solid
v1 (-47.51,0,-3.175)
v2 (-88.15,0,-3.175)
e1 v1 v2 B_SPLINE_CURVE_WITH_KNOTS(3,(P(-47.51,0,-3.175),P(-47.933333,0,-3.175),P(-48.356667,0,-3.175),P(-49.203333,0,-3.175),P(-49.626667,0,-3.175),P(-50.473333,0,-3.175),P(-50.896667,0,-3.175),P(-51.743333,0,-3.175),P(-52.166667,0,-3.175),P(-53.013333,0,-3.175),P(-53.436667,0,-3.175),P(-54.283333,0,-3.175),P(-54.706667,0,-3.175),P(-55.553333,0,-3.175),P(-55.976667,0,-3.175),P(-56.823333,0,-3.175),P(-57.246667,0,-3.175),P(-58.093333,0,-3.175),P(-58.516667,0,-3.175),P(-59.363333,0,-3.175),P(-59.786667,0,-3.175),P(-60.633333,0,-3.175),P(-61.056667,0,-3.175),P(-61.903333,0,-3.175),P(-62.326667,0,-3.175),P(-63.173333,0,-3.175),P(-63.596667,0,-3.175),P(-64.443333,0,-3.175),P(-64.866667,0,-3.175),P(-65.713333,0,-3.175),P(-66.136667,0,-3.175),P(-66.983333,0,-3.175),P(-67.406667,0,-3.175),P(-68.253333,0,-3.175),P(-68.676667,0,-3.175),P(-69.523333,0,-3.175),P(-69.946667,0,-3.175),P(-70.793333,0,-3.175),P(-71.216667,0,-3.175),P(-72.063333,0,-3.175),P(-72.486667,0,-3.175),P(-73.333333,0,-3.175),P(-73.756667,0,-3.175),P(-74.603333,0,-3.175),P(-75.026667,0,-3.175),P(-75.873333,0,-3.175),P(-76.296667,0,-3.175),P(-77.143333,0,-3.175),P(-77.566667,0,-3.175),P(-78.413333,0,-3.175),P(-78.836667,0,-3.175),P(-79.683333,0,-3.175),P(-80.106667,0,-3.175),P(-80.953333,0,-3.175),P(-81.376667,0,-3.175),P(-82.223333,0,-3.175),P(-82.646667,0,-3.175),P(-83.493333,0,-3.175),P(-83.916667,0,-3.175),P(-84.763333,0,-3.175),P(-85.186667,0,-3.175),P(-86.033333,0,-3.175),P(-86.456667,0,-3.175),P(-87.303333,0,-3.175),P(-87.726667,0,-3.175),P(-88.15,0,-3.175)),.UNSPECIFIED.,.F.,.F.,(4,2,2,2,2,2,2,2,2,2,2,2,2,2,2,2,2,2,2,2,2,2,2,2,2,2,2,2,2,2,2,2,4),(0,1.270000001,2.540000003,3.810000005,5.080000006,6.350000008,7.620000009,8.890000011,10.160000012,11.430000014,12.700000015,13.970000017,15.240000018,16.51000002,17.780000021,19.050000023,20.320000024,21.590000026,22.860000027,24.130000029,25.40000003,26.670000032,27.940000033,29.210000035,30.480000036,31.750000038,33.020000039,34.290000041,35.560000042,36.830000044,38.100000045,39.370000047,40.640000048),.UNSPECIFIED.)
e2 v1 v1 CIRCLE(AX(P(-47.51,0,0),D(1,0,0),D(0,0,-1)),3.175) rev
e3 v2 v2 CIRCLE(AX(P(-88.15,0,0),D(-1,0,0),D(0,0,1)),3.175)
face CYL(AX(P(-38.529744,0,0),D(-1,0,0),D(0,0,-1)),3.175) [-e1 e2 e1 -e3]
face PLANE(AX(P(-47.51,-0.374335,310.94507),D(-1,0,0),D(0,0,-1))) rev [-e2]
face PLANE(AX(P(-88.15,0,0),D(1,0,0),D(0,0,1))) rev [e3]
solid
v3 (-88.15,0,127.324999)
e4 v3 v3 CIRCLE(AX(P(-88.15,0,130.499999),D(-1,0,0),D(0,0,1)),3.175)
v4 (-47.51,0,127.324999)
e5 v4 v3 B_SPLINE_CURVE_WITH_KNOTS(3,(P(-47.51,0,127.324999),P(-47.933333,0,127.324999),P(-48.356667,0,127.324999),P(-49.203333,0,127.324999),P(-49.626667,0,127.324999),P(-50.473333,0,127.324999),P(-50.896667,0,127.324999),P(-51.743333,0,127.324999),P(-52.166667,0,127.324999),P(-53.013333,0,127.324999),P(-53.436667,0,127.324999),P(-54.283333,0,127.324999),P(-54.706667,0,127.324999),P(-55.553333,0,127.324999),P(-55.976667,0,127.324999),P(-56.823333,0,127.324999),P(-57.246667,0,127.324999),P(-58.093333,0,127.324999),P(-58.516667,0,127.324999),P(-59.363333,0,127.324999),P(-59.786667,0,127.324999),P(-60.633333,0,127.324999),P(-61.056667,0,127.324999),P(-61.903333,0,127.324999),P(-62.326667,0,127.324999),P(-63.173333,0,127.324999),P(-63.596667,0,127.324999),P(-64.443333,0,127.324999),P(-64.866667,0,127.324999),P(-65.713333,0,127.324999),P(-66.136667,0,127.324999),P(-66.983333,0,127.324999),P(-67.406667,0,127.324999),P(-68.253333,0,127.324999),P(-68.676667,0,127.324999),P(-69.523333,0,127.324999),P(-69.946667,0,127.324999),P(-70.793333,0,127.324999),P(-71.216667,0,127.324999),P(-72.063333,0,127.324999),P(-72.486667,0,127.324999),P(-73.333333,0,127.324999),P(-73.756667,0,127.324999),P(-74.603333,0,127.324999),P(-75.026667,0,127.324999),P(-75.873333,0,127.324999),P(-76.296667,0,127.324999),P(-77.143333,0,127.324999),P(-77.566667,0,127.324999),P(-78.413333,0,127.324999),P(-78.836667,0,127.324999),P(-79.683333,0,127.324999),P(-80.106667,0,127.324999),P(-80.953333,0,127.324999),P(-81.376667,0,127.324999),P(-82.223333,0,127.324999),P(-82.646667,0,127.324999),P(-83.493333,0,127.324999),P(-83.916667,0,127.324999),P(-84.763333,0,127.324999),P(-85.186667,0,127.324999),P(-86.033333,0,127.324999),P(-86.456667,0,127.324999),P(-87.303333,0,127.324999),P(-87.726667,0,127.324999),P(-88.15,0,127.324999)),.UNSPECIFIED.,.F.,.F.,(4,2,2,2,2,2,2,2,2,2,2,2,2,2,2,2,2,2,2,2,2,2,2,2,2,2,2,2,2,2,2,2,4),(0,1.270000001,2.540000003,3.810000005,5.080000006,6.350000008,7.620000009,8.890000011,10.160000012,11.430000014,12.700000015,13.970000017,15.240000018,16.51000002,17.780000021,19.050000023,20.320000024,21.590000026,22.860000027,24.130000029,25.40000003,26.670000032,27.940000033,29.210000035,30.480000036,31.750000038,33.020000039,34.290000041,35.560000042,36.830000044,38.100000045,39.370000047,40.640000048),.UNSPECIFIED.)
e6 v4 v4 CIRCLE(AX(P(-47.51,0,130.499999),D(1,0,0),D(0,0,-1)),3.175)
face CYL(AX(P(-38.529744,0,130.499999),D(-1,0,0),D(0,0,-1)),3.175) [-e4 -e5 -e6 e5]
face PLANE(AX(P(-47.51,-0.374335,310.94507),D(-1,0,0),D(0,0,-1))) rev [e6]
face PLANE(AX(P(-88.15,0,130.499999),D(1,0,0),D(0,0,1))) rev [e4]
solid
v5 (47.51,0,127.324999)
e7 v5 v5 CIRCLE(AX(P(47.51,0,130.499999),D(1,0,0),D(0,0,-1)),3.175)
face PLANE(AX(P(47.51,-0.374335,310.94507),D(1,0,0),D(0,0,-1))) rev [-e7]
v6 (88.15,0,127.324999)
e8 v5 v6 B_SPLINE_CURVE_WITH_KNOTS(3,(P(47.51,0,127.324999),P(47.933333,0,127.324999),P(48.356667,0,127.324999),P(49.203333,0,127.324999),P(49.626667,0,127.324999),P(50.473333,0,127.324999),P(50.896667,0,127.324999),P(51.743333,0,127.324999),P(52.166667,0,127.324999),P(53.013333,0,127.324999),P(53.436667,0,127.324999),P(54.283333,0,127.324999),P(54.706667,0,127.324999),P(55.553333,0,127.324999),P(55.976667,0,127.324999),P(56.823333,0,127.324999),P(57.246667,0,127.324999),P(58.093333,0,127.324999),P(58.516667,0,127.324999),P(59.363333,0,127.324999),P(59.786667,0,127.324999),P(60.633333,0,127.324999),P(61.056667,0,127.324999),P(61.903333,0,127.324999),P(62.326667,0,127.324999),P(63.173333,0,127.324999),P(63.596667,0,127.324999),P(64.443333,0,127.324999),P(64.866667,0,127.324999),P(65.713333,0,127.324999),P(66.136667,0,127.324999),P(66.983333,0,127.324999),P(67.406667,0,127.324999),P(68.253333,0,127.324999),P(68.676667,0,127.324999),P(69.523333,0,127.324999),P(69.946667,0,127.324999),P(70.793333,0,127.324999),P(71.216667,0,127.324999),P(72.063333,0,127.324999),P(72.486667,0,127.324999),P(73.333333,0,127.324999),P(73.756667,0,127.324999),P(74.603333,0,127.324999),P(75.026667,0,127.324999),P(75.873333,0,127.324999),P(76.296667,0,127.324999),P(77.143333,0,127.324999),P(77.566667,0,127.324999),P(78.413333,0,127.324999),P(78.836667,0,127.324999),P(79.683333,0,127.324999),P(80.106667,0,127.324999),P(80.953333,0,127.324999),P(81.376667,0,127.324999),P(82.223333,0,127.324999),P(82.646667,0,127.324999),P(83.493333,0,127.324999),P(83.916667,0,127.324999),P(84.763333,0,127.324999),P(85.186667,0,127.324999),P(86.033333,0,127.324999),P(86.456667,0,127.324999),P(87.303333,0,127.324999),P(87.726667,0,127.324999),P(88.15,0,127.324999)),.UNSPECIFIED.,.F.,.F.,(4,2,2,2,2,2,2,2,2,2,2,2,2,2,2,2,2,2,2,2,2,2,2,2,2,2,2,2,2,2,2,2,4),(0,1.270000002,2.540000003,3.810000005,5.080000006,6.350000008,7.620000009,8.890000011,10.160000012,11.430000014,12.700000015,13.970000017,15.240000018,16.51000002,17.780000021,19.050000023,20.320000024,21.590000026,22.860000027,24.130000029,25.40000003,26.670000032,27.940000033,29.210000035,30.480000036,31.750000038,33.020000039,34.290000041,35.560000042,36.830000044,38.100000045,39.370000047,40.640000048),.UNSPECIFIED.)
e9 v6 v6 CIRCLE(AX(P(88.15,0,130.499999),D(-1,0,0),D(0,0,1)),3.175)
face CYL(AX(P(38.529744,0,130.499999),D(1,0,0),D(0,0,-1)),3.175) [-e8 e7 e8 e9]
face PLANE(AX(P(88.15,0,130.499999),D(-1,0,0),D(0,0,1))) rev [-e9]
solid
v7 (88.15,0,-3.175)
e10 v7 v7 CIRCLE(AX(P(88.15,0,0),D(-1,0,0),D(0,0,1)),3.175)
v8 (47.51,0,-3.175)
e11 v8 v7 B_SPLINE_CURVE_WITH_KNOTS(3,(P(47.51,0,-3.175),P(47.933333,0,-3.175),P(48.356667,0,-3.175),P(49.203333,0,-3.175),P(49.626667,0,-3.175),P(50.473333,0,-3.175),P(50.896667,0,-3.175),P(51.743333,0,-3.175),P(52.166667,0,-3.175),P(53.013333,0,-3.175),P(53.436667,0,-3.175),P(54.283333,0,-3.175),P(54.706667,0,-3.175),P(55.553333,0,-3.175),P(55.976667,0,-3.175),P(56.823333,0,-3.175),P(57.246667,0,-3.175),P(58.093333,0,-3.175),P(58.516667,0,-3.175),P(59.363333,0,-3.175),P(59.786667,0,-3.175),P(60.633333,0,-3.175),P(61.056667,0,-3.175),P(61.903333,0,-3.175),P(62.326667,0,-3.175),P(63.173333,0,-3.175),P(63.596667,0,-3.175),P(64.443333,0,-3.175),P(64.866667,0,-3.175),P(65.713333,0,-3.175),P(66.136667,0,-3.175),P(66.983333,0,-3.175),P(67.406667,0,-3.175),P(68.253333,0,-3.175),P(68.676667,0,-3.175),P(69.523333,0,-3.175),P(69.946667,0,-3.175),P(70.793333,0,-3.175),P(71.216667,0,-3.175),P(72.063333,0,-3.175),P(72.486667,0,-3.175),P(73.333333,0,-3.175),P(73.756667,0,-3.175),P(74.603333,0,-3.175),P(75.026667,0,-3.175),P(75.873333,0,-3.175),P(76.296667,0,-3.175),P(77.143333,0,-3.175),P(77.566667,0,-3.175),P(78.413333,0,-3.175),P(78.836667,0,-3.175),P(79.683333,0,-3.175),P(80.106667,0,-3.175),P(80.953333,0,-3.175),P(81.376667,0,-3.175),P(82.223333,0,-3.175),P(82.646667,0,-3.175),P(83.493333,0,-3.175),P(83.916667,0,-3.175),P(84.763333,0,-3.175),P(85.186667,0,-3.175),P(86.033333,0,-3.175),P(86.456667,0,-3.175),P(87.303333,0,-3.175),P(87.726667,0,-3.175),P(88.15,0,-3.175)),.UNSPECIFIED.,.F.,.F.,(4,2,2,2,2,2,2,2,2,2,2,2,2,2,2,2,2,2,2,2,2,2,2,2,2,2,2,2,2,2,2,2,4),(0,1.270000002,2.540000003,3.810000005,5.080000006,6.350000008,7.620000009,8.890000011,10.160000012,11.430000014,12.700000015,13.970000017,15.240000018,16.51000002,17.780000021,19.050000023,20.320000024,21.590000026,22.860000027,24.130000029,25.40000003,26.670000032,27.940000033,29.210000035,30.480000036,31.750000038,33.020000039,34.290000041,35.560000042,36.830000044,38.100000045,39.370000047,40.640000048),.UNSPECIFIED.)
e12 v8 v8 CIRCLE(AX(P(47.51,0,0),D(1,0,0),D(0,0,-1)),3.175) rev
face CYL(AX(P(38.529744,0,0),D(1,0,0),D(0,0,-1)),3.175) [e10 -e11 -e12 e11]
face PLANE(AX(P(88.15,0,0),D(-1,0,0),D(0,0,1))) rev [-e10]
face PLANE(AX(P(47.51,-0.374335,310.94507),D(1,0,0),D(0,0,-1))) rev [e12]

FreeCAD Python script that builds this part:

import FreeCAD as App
import Part
import Sketcher
Q = App.Units.Quantity

doc = App.newDocument("Part")
params = doc.addObject("Spreadsheet::Sheet", "Params")
for row, (alias, value) in enumerate([
    ("sketch1_diameter", "0.25 in"),
    ("pad1_length", "1.6 in"),
    ("sketch2_diameter", "0.25 in"),
    ("pad2_length", "1.6 in"),
], start=1):
    params.set(f"A{row}", alias)
    params.set(f"B{row}", "=" + value)
    params.setAlias(f"B{row}", alias)

body = doc.addObject("PartDesign::Body", "Body")

# Sketch on YZ plane
sketch1 = body.newObject("Sketcher::SketchObject", "Sketch")
sketch1.AttachmentSupport = (doc.getObject("YZ_Plane"), [""])
sketch1.MapMode = "FlatFace"
sketch1.AttachmentOffset = App.Placement(App.Vector(0, 0, 88.15), App.Rotation())
sketch1.addGeometry(Part.Circle(App.Vector(0, 130.5, 0), App.Vector(0, 0, 1), 3.2), False)
sketch1.addConstraint(Sketcher.Constraint("PointOnObject", 0, 3, -2))
sketch1.addConstraint(Sketcher.Constraint("Diameter", 0, Q("0.25 in")))
sketch1.addConstraint(Sketcher.Constraint("DistanceY", -1, 1, 0, 3, 130.499999))
sketch1.setExpression("Constraints[1]", "Params.sketch1_diameter")
pad1 = body.newObject("PartDesign::Pad", "Pad")
pad1.Profile = sketch1
pad1.setExpression("Length", "Params.pad1_length")
pad1.Reversed = True
body2 = doc.addObject("PartDesign::Body", "Body001")

# Sketch on YZ plane
sketch2 = body2.newObject("Sketcher::SketchObject", "Sketch001")
sketch2.AttachmentSupport = (doc.getObject("YZ_Plane001"), [""])
sketch2.MapMode = "FlatFace"
sketch2.AttachmentOffset = App.Placement(App.Vector(0, 0, 88.15), App.Rotation())
sketch2.addGeometry(Part.Circle(App.Vector(0, 0, 0), App.Vector(0, 0, 1), 3.2), False)
sketch2.addConstraint(Sketcher.Constraint("Coincident", 0, 3, -1, 1))
sketch2.addConstraint(Sketcher.Constraint("Diameter", 0, Q("0.25 in")))
sketch2.setExpression("Constraints[1]", "Params.sketch2_diameter")
pad2 = body2.newObject("PartDesign::Pad", "Pad001")
pad2.Profile = sketch2
pad2.setExpression("Length", "Params.pad2_length")
pad2.Reversed = True
body3 = doc.addObject("PartDesign::Body", "Body002")
doc.recompute()

mirroring = doc.addObject("Part::Mirroring", "Mirroring")
mirroring.Source = body
mirroring.Base = App.Vector(0, 0, 0)
mirroring.Normal = App.Vector(1, 0, 0)
body3.BaseFeature = mirroring
doc.recompute()
body4 = doc.addObject("PartDesign::Body", "Body003")
doc.recompute()

mirroring2 = doc.addObject("Part::Mirroring", "Mirroring001")
mirroring2.Source = body2
mirroring2.Base = App.Vector(0, 0, 0)
mirroring2.Normal = App.Vector(1, 0, 0)
body4.BaseFeature = mirroring2
doc.recompute()
mirroring.Visibility = False
mirroring2.Visibility = False

doc.recompute()
